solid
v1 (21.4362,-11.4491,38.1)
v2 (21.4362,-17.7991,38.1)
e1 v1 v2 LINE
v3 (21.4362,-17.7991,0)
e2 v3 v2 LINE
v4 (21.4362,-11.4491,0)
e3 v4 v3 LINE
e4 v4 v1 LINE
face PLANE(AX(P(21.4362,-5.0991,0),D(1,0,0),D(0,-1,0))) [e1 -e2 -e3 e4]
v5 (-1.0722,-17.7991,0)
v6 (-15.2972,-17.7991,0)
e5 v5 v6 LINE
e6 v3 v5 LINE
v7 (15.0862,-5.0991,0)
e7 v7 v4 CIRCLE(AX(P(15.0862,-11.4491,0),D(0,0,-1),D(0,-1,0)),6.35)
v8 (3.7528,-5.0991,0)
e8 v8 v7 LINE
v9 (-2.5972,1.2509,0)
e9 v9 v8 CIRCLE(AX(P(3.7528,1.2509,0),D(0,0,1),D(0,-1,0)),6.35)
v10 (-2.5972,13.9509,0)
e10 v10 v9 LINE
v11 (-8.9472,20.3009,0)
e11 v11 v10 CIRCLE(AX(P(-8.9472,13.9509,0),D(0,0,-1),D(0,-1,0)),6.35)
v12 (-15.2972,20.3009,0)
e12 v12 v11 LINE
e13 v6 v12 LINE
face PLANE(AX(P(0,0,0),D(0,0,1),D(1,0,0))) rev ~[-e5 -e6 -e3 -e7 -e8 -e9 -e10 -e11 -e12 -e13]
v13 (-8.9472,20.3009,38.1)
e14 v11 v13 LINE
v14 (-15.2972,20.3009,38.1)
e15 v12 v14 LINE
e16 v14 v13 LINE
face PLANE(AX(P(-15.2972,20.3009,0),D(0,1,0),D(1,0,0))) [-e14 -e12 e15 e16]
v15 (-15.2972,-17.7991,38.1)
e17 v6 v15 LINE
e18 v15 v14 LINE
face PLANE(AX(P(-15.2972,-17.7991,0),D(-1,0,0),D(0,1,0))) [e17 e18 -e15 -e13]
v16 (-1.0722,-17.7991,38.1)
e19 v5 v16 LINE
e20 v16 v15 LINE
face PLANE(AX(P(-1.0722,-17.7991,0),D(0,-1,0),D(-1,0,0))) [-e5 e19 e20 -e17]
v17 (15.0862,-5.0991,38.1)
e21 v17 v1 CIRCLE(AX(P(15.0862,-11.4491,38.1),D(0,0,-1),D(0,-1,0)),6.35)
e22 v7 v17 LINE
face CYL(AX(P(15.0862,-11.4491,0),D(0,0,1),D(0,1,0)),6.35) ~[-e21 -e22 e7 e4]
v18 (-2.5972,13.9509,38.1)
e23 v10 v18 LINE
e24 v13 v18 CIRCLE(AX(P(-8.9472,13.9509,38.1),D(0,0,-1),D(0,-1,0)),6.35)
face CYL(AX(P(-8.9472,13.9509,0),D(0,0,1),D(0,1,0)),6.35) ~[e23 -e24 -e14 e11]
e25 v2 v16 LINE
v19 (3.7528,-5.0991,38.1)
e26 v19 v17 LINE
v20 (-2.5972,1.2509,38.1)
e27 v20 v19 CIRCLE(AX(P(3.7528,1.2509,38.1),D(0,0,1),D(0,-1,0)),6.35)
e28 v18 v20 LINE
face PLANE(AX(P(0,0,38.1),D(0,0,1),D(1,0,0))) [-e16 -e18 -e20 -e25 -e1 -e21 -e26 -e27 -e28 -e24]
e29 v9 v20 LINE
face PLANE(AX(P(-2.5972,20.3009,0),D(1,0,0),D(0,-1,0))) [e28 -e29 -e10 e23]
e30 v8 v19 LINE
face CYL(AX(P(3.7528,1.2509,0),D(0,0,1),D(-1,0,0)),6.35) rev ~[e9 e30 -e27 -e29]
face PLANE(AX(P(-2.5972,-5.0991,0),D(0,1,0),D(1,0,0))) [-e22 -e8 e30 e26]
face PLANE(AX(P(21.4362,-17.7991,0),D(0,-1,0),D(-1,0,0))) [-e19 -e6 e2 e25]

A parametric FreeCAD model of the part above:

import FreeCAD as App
import Part
import Sketcher
Q = App.Units.Quantity


def edges_at(feature, points):
    """Names of the edges that pass closest to the given points."""
    edges = feature.Shape.Edges
    near = lambda p: min(range(len(edges)), key=lambda i: edges[i].distToShape(Part.Vertex(*p))[0])
    return sorted({f"Edge{near(p) + 1}" for p in points})


def add_polygon(sketch, points):
    """Adds a closed chain of lines whose ends are joined by coincident constraints."""
    first, n = sketch.GeometryCount, len(points)
    for a, b in zip(points, points[1:] + points[:1]):
        sketch.addGeometry(Part.LineSegment(App.Vector(*a, 0), App.Vector(*b, 0)), False)
    for i in range(n):
        sketch.addConstraint(Sketcher.Constraint("Coincident", first + i, 2, first + (i + 1) % n, 1))

doc = App.newDocument("Part")
body = doc.addObject("PartDesign::Body", "Body")

sketch1 = body.newObject("Sketcher::SketchObject", "Sketch")
sketch1.AttachmentSupport = (doc.getObject("XY_Plane"), [""])
sketch1.MapMode = "FlatFace"
add_polygon(sketch1, [(-3, 20), (-15, 20), (-15, -18), (21, -18), (21, -5), (-3, -5)])
sketch1.addConstraint([
    Sketcher.Constraint("Horizontal", 0),
    Sketcher.Constraint("Vertical", 1),
    Sketcher.Constraint("Horizontal", 2),
    Sketcher.Constraint("Vertical", 3),
    Sketcher.Constraint("Horizontal", 4),
    Sketcher.Constraint("Vertical", 5),
    Sketcher.Constraint("Equal", 0, 3),
    Sketcher.Constraint("DistanceY", 5, 1, 5, 2, Q("1 in")),
    Sketcher.Constraint("DistanceX", 0, 2, 0, 1, Q("0.5 in")),
    Sketcher.Constraint("DistanceX", 2, 1, 2, 2, Q("1.4462 in")),
    Sketcher.Constraint("DistanceX", 0, 2, -1, 1, Q("15.2972 mm")),
    Sketcher.Constraint("DistanceY", -1, 1, 0, 2, Q("20.301 mm")),
])
pad1 = body.newObject("PartDesign::Pad", "Pad")
pad1.Profile = sketch1
pad1.Length = Q("1.5 in")
doc.recompute()

fillet = body.newObject("PartDesign::Fillet", "Fillet")
fillet.Base = (pad1, edges_at(pad1, [(-2.597, 20.301, 19.05), (-2.597, -5.099, 19.05), (21.436, -5.099, 19.05)]))
fillet.Radius = Q("0.25 in")

doc.recompute()
